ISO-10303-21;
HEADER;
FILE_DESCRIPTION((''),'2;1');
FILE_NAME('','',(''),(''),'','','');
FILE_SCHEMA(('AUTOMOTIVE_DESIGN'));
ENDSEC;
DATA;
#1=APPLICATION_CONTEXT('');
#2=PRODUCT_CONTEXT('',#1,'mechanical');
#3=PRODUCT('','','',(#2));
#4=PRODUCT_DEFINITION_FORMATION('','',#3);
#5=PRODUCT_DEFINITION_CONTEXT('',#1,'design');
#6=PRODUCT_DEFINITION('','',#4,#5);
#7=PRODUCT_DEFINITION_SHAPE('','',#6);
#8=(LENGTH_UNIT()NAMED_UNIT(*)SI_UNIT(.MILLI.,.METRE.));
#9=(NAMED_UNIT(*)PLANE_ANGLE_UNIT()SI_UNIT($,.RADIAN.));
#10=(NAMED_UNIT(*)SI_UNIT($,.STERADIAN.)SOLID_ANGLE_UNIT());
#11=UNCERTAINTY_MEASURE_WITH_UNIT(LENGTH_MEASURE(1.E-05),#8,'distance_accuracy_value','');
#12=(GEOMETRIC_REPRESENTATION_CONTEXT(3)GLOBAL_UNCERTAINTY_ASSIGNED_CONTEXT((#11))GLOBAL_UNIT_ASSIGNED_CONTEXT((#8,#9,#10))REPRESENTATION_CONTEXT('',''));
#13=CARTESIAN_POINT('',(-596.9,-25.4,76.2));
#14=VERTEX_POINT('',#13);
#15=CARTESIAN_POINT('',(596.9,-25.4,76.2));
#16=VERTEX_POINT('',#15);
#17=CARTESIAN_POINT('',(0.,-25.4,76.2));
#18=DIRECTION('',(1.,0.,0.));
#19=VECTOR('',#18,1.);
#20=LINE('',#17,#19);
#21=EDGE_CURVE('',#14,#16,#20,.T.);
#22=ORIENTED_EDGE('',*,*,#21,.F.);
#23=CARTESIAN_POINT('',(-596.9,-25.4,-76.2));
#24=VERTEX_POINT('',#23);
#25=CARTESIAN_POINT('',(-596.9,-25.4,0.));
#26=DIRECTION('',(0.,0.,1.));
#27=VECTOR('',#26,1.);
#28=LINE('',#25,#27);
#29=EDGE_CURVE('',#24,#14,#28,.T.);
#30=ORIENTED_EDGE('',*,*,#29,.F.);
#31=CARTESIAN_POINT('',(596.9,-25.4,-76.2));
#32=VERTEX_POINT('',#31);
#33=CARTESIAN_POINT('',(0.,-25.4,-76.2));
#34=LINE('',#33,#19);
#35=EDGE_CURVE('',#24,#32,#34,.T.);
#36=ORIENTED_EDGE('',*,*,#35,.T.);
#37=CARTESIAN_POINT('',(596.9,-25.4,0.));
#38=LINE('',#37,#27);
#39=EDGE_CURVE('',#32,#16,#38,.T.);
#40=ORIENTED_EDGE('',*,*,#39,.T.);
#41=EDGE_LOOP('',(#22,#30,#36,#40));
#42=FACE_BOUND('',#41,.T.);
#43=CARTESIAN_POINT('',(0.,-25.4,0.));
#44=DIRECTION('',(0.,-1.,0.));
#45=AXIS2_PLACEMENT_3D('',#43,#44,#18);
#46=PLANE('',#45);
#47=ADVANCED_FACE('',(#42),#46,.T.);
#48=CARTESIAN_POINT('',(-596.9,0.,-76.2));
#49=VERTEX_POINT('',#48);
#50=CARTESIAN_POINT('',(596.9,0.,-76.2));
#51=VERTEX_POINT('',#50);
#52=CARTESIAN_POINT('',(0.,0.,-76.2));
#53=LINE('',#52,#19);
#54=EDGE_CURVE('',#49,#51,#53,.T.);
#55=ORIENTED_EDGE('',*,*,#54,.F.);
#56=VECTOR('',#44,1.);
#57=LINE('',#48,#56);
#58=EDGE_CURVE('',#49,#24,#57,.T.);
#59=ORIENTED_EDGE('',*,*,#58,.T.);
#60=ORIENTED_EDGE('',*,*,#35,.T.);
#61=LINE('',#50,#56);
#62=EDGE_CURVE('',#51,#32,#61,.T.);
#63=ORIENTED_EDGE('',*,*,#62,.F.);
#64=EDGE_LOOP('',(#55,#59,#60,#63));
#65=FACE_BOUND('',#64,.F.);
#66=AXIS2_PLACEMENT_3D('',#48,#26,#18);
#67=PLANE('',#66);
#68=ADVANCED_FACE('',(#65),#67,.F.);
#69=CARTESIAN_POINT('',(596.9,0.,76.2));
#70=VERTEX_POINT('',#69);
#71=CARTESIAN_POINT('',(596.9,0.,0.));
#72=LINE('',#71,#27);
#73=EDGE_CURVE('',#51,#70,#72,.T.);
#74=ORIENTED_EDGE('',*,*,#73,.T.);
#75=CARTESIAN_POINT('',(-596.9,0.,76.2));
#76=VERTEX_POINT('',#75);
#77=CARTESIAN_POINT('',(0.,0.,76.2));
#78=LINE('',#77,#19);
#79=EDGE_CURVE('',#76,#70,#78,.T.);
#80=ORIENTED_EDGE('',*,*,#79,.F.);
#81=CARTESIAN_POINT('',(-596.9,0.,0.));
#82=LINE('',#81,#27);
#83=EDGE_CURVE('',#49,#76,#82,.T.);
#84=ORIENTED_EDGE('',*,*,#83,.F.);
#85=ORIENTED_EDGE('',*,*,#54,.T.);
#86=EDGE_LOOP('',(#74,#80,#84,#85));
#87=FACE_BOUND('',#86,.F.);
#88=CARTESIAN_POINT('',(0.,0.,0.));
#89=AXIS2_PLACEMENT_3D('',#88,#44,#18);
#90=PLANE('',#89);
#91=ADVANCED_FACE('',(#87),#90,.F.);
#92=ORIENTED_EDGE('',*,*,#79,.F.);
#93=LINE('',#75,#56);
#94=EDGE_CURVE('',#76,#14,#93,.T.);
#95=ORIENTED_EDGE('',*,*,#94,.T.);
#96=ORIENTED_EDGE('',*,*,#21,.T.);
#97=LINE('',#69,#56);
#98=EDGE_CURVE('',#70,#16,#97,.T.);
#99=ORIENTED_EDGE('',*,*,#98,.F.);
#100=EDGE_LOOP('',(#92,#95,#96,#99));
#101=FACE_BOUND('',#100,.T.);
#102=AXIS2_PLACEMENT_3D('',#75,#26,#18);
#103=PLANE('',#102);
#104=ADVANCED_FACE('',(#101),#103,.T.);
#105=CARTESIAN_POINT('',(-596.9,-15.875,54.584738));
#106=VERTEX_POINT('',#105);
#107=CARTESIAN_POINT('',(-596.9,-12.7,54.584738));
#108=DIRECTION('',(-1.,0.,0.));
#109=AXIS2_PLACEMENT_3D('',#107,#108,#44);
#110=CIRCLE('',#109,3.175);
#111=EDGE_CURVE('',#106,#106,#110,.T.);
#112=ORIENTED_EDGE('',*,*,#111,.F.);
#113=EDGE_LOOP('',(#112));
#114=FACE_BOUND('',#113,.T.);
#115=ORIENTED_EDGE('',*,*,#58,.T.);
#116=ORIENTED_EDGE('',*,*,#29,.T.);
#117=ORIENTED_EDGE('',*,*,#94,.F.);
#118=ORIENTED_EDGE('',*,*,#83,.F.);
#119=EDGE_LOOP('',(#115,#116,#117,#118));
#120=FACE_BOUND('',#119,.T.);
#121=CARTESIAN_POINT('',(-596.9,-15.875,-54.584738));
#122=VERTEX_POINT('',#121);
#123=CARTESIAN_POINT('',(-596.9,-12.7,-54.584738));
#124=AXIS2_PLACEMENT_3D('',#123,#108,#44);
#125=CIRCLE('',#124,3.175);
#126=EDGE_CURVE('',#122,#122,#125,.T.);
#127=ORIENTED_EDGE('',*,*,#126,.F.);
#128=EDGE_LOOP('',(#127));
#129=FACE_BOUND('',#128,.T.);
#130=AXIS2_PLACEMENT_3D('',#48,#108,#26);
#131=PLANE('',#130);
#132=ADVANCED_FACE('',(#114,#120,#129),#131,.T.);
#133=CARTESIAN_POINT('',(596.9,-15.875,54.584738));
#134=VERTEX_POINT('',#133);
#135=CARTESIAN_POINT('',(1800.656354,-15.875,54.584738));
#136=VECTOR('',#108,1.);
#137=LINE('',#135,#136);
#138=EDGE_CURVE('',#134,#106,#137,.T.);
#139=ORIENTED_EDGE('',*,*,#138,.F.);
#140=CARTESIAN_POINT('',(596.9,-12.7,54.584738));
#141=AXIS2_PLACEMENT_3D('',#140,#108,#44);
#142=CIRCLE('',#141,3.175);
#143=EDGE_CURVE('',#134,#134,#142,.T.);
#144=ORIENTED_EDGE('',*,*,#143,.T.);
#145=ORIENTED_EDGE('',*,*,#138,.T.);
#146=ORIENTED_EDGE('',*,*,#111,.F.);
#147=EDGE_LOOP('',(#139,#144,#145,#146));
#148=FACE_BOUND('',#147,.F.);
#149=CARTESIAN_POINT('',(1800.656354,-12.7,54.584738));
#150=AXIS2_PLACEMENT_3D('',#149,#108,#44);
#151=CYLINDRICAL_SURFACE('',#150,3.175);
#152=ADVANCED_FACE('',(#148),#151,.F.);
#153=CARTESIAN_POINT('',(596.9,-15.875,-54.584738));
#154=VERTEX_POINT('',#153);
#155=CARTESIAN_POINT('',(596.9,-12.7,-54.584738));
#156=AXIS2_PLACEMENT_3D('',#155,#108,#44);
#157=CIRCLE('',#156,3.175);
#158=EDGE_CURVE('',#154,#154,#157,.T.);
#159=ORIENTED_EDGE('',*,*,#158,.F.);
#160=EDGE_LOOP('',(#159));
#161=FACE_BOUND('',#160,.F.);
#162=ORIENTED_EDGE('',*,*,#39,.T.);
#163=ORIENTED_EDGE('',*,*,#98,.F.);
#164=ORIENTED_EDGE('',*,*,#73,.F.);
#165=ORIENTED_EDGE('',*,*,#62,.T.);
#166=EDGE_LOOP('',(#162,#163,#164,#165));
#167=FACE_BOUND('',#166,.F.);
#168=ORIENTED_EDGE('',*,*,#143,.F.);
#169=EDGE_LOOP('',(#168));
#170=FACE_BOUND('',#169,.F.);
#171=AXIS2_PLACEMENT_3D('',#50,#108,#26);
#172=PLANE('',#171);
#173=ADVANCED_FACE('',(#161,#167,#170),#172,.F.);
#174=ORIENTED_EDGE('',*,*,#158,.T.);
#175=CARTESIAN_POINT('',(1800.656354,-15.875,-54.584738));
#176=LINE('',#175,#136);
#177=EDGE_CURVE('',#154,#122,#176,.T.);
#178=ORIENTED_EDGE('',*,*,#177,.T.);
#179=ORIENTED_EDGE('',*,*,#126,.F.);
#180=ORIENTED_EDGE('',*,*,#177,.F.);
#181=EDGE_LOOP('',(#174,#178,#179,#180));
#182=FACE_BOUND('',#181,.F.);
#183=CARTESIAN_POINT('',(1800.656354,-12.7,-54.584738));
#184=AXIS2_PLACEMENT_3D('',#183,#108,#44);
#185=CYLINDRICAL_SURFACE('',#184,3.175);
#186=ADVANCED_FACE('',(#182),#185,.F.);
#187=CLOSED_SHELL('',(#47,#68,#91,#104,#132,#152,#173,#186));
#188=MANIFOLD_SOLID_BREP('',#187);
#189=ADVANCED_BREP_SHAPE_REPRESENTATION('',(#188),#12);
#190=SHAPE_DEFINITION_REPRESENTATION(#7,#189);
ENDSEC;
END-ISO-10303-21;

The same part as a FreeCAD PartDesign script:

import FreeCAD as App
import Part
import Sketcher
Q = App.Units.Quantity


def add_polygon(sketch, points):
    """Adds a closed chain of lines whose ends are joined by coincident constraints."""
    first, n = sketch.GeometryCount, len(points)
    for a, b in zip(points, points[1:] + points[:1]):
        sketch.addGeometry(Part.LineSegment(App.Vector(*a, 0), App.Vector(*b, 0)), False)
    for i in range(n):
        sketch.addConstraint(Sketcher.Constraint("Coincident", first + i, 2, first + (i + 1) % n, 1))

doc = App.newDocument("Part")
body = doc.addObject("PartDesign::Body", "Body")

# Sketch on XZ plane
sketch1 = body.newObject("Sketcher::SketchObject", "Sketch")
sketch1.AttachmentSupport = (doc.getObject("XZ_Plane"), [""])
sketch1.MapMode = "FlatFace"
add_polygon(sketch1, [(-597, 76), (-597, -76), (597, -76), (597, 76)])  # lines 0-3
sketch1.addConstraint(Sketcher.Constraint("Vertical", 0))
sketch1.addConstraint(Sketcher.Constraint("Horizontal", 1))
sketch1.addConstraint(Sketcher.Constraint("Vertical", 2))
sketch1.addConstraint(Sketcher.Constraint("Horizontal", 3))
sketch1.addConstraint(Sketcher.Constraint("Symmetric", 0, 2, 2, 2, -1, 1))
sketch1.addConstraint(Sketcher.Constraint("DistanceX", 1, 1, 1, 2, Q("47 in")))
sketch1.addConstraint(Sketcher.Constraint("DistanceY", 0, 2, 0, 1, Q("6 in")))
pad1 = body.newObject("PartDesign::Pad", "Pad")
pad1.Profile = sketch1
pad1.Length = Q("1 in")

# Sketch on YZ plane
sketch2 = body.newObject("Sketcher::SketchObject", "Sketch001")
sketch2.AttachmentSupport = (doc.getObject("YZ_Plane"), [""])
sketch2.MapMode = "FlatFace"
sketch2.AttachmentOffset = App.Placement(App.Vector(0, 0, 23.5 * 25.4), App.Rotation())
sketch2.addGeometry(Part.Circle(App.Vector(-12.7, 54.6, 0), App.Vector(0, 0, 1), 3.2), False)
sketch2.addGeometry(Part.Circle(App.Vector(-12.7, -54.6, 0), App.Vector(0, 0, 1), 3.2), False)
sketch2.addConstraint(Sketcher.Constraint("Equal", 0, 1))
sketch2.addConstraint(Sketcher.Constraint("Symmetric", 0, 3, 1, 3, -1))
sketch2.addConstraint(Sketcher.Constraint("Diameter", 0, Q("0.25 in")))
sketch2.addConstraint(Sketcher.Constraint("DistanceX", 0, 3, -1, 1, Q("0.5 in")))
sketch2.addConstraint(Sketcher.Constraint("DistanceY", -1, 1, 0, 3, Q("54.584738 mm")))
doc.recompute()
hole = body.newObject("PartDesign::Hole", "Hole")
hole.Profile = sketch2
hole.ThreadType = "None"
hole.Diameter = Q("0.25 in")
hole.DepthType = "ThroughAll"

doc.recompute()
